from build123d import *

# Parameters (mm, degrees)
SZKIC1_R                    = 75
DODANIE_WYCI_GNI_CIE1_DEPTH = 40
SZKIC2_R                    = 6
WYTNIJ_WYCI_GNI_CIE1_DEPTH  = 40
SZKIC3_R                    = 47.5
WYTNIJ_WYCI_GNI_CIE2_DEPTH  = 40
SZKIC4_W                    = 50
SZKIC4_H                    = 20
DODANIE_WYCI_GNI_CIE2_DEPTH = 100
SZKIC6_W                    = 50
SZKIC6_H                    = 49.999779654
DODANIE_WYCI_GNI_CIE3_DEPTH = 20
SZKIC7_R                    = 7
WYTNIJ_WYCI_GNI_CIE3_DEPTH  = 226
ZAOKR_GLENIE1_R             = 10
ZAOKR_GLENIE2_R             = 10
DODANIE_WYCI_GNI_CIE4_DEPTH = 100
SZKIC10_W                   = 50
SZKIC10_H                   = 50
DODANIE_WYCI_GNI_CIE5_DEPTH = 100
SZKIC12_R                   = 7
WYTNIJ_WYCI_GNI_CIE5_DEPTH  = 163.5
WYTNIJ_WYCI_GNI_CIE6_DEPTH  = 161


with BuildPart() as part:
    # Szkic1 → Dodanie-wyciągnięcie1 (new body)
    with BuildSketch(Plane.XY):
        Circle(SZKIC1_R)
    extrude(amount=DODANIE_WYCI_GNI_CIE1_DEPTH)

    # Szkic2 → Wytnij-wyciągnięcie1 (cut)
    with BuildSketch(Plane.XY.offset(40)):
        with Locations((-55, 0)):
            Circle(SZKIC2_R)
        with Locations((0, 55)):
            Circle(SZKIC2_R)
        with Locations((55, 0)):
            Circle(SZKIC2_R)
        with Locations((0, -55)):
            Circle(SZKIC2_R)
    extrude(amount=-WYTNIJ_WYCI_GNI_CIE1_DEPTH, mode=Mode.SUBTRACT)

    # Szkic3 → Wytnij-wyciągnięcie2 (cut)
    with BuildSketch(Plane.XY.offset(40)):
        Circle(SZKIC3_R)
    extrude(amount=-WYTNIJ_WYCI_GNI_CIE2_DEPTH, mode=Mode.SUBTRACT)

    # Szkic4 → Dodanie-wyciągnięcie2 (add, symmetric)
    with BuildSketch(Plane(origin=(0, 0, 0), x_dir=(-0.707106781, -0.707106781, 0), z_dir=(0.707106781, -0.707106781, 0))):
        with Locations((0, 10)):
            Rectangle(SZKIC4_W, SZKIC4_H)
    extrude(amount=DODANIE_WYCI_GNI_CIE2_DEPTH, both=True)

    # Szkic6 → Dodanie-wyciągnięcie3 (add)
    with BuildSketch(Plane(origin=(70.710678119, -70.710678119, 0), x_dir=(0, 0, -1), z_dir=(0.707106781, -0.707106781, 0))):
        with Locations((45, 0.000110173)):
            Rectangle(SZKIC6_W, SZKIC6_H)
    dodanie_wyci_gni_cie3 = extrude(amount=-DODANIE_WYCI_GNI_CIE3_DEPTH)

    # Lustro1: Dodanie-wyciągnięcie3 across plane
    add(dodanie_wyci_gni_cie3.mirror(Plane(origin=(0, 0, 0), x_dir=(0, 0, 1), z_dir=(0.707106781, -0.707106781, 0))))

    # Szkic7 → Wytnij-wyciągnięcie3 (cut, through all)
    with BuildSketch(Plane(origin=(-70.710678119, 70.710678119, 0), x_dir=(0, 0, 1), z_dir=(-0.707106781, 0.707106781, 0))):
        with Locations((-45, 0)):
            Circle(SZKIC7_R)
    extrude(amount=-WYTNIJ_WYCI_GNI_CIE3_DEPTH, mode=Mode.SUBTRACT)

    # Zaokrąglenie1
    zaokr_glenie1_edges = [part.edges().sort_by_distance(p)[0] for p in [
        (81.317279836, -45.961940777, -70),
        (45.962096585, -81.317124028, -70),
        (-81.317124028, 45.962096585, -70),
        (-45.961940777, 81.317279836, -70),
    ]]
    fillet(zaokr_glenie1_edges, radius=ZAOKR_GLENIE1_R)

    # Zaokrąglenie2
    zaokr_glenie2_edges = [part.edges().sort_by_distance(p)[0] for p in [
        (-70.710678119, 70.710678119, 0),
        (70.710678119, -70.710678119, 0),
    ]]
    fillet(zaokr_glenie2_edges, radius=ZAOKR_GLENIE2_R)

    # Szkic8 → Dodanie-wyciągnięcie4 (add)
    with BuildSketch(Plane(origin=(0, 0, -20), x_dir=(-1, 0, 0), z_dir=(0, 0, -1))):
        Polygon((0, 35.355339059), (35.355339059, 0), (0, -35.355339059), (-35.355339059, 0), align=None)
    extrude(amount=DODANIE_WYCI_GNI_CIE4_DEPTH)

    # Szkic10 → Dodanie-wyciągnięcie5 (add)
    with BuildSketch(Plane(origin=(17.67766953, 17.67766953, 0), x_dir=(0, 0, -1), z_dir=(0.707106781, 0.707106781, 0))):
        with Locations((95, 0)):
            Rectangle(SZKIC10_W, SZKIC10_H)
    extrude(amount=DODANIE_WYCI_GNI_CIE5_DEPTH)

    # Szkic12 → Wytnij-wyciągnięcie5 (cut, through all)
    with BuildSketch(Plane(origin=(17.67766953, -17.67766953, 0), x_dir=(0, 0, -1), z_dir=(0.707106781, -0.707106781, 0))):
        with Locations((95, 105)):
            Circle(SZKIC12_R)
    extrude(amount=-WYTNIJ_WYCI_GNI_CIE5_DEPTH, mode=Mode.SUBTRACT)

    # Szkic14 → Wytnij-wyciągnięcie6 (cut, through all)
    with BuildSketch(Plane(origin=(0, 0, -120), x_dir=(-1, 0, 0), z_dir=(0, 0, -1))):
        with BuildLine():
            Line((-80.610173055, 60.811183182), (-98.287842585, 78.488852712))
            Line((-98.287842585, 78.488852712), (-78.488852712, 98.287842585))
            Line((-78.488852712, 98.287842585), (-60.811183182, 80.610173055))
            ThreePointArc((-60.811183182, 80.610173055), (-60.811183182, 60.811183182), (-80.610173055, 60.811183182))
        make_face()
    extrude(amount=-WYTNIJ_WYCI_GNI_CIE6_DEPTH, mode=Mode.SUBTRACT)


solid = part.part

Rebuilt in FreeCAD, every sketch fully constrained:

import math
import FreeCAD as App
import Part
import Sketcher

V = App.Vector
Q = App.Units.Quantity


def edges_at(feature, points):
    """Names of the edges that pass closest to the given points."""
    edges = feature.Shape.Edges
    near = lambda p: min(range(len(edges)), key=lambda i: edges[i].distToShape(Part.Vertex(*p))[0])
    return sorted({f"Edge{near(p) + 1}" for p in points})


def add_polygon(sketch, points):
    """Adds a closed chain of lines whose ends are joined by coincident constraints."""
    first, n = sketch.GeometryCount, len(points)
    for a, b in zip(points, points[1:] + points[:1]):
        sketch.addGeometry(Part.LineSegment(App.Vector(*a, 0), App.Vector(*b, 0)), False)
    for i in range(n):
        sketch.addConstraint(Sketcher.Constraint("Coincident", first + i, 2, first + (i + 1) % n, 1))

doc = App.newDocument("Part")
params = doc.addObject("Spreadsheet::Sheet", "Params")
for row, (alias, value) in enumerate([
    ("sketch1_diameter", "150 mm"),
    ("pad1_length", "40 mm"),
    ("sketch2_diameter", "12 mm"),
    ("pocket1_length", "40 mm"),
    ("sketch3_diameter", "95 mm"),
    ("pocket2_length", "40 mm"),
    ("sketch4_width", "50 mm"),
    ("sketch4_height", "20 mm"),
    ("pad2_length", "200 mm"),
    ("sketch5_width", "50 mm"),
    ("pad3_length", "20 mm"),
    ("sketch6_diameter", "14 mm"),
    ("fillet_radius", "10 mm"),
    ("fillet2_radius", "10 mm"),
    ("sketch7_length", "50 mm"),
    ("pad4_length", "100 mm"),
    ("sketch8_width", "50 mm"),
    ("pad5_length", "100 mm"),
    ("sketch9_diameter", "14 mm"),
    ("sketch10_radius", "14 mm"),
    ("sketch10_length", "25 mm"),
], start=1):
    params.set(f"A{row}", alias)
    params.set(f"B{row}", "=" + value)
    params.setAlias(f"B{row}", alias)

body = doc.addObject("PartDesign::Body", "Body")

sketch1 = body.newObject("Sketcher::SketchObject", "Sketch")
sketch1.AttachmentSupport = (doc.getObject("XY_Plane"), [""])
sketch1.MapMode = "FlatFace"
sketch1.addGeometry(Part.Circle(V(0, 0, 0), V(0, 0, 1), 75), False)
sketch1.addConstraint(Sketcher.Constraint("Coincident", 0, 3, -1, 1))
sketch1.addConstraint(Sketcher.Constraint("Diameter", 0, 150.0))
sketch1.setExpression("Constraints[1]", "Params.sketch1_diameter")
pad1 = body.newObject("PartDesign::Pad", "Pad")
pad1.Profile = sketch1
pad1.setExpression("Length", "Params.pad1_length")

sketch2 = body.newObject("Sketcher::SketchObject", "Sketch001")
sketch2.AttachmentSupport = (doc.getObject("XY_Plane"), [""])
sketch2.MapMode = "FlatFace"
sketch2.AttachmentOffset = App.Placement(V(0, 0, 40), App.Rotation())
sketch2.addGeometry(Part.Circle(V(-55, 0, 0), V(0, 0, 1), 6), False)
sketch2.addGeometry(Part.Circle(V(0, 55, 0), V(0, 0, 1), 6), False)
sketch2.addGeometry(Part.Circle(V(55, 0, 0), V(0, 0, 1), 6), False)
sketch2.addGeometry(Part.Circle(V(0, -55, 0), V(0, 0, 1), 6), False)
sketch2.addConstraint(Sketcher.Constraint("Equal", 0, 1))
sketch2.addConstraint(Sketcher.Constraint("Equal", 1, 2))
sketch2.addConstraint(Sketcher.Constraint("Equal", 2, 3))
sketch2.addConstraint(Sketcher.Constraint("Symmetric", 0, 3, 2, 3, -1, 1))
sketch2.addConstraint(Sketcher.Constraint("Symmetric", 1, 3, 3, 3, -1, 1))
sketch2.addConstraint(Sketcher.Constraint("PointOnObject", 0, 3, -1))
sketch2.addConstraint(Sketcher.Constraint("PointOnObject", 1, 3, -2))
sketch2.addConstraint(Sketcher.Constraint("Diameter", 0, 12.0))
sketch2.addConstraint(Sketcher.Constraint("DistanceX", 0, 3, -1, 1, 55.0))
sketch2.addConstraint(Sketcher.Constraint("DistanceY", -1, 1, 1, 3, 55.0))
sketch2.setExpression("Constraints[7]", "Params.sketch2_diameter")
pocket1 = body.newObject("PartDesign::Pocket", "Pocket")
pocket1.Profile = sketch2
pocket1.setExpression("Length", "Params.pocket1_length")

sketch3 = body.newObject("Sketcher::SketchObject", "Sketch002")
sketch3.AttachmentSupport = (doc.getObject("XY_Plane"), [""])
sketch3.MapMode = "FlatFace"
sketch3.AttachmentOffset = App.Placement(V(0, 0, 40), App.Rotation())
sketch3.addGeometry(Part.Circle(V(0, 0, 0), V(0, 0, 1), 47.5), False)
sketch3.addConstraint(Sketcher.Constraint("Coincident", 0, 3, -1, 1))
sketch3.addConstraint(Sketcher.Constraint("Diameter", 0, 95.0))
sketch3.setExpression("Constraints[1]", "Params.sketch3_diameter")
pocket2 = body.newObject("PartDesign::Pocket", "Pocket001")
pocket2.Profile = sketch3
pocket2.setExpression("Length", "Params.pocket2_length")

sketch4 = body.newObject("Sketcher::SketchObject", "Sketch003")
sketch4.Placement = App.Placement(V(0, 0, 0), App.Rotation(V(-0.707106781, -0.707106781, 0), V(0, 0, -0.999999999), V(0.707106781, -0.707106781, 0), "ZXY"))
add_polygon(sketch4, [(-25, 20), (-25, 0), (25, 0), (25, 20)])
sketch4.addConstraint(Sketcher.Constraint("Vertical", 0))
sketch4.addConstraint(Sketcher.Constraint("Horizontal", 1))
sketch4.addConstraint(Sketcher.Constraint("Vertical", 2))
sketch4.addConstraint(Sketcher.Constraint("Horizontal", 3))
sketch4.addConstraint(Sketcher.Constraint("Symmetric", 0, 2, 1, 2, -1, 1))
sketch4.addConstraint(Sketcher.Constraint("DistanceX", 1, 1, 1, 2, 50.0))
sketch4.addConstraint(Sketcher.Constraint("DistanceY", 0, 2, 0, 1, 20.0))
sketch4.setExpression("Constraints[9]", "Params.sketch4_width")
sketch4.setExpression("Constraints[10]", "Params.sketch4_height")
pad2 = body.newObject("PartDesign::Pad", "Pad001")
pad2.Profile = sketch4
pad2.setExpression("Length", "Params.pad2_length")
pad2.Midplane = True

sketch5 = body.newObject("Sketcher::SketchObject", "Sketch004")
sketch5.Placement = App.Placement(V(70.710678, -70.710678, 0), App.Rotation(V(0, 0, -1), V(0.707106781, 0.707106781, 0), V(0.707106781, -0.707106781, 0), "ZXY"))
add_polygon(sketch5, [(20, 25), (20, -24.99978), (70, -24.99978), (70, 25)])
sketch5.addConstraint(Sketcher.Constraint("Vertical", 0))
sketch5.addConstraint(Sketcher.Constraint("Horizontal", 1))
sketch5.addConstraint(Sketcher.Constraint("Vertical", 2))
sketch5.addConstraint(Sketcher.Constraint("Horizontal", 3))
sketch5.addConstraint(Sketcher.Constraint("DistanceX", 1, 1, 1, 2, 50.0))
sketch5.addConstraint(Sketcher.Constraint("DistanceX", -1, 1, 0, 2, 20.0))
sketch5.addConstraint(Sketcher.Constraint("DistanceY", -1, 1, 2, 2, 25.0))
sketch5.addConstraint(Sketcher.Constraint("DistanceY", 0, 2, 0, 1, 49.99978))
sketch5.setExpression("Constraints[8]", "Params.sketch5_width")
pad3 = body.newObject("PartDesign::Pad", "Pad002")
pad3.Profile = sketch5
pad3.setExpression("Length", "Params.pad3_length")
pad3.Reversed = True
doc.recompute()

datumplane = body.newObject("PartDesign::Plane", "DatumPlane")
datumplane.Placement = App.Placement(V(0, 0, 0), App.Rotation(V(-0.707106781, -0.707106781, 0), V(0, 0, -1), V(0.707106781, -0.707106781, 0), "ZXY"))
mirrored = body.newObject("PartDesign::Mirrored", "Mirrored")
mirrored.Originals = [pad3]
mirrored.MirrorPlane = (datumplane, [""])
body.Tip = mirrored

sketch6 = body.newObject("Sketcher::SketchObject", "Sketch005")
sketch6.Placement = App.Placement(V(-70.710678, 70.710678, 0), App.Rotation(V(0, 0, 1), V(0.707106781, 0.707106781, 0), V(-0.707106781, 0.707106781, 0), "ZXY"))
sketch6.addGeometry(Part.Circle(V(-45, 0, 0), V(0, 0, 1), 7), False)
sketch6.addConstraint(Sketcher.Constraint("PointOnObject", 0, 3, -1))
sketch6.addConstraint(Sketcher.Constraint("Diameter", 0, 14.0))
sketch6.addConstraint(Sketcher.Constraint("DistanceX", 0, 3, -1, 1, 45.0))
sketch6.setExpression("Constraints[1]", "Params.sketch6_diameter")
pocket3 = body.newObject("PartDesign::Pocket", "Pocket002")
pocket3.Profile = sketch6
pocket3.Type = "ThroughAll"
doc.recompute()

fillet = body.newObject("PartDesign::Fillet", "Fillet")
fillet.Base = (pocket3, edges_at(pocket3, [
    (81.317, -45.962, -70),
    (45.962, -81.317, -70),
    (-81.317, 45.962, -70),
    (-45.962, 81.317, -70),
]))
fillet.setExpression("Radius", "Params.fillet_radius")
doc.recompute()

fillet2 = body.newObject("PartDesign::Fillet", "Fillet001")
fillet2.Base = (fillet, edges_at(fillet, [(-70.711, 70.711, 0), (70.711, -70.711, 0)]))
fillet2.setExpression("Radius", "Params.fillet2_radius")

sketch7 = body.newObject("Sketcher::SketchObject", "Sketch006")
sketch7.AttachmentSupport = (doc.getObject("XY_Plane"), [""])
sketch7.MapMode = "FlatFace"
sketch7.AttachmentOffset = App.Placement(V(0, 0, -20), App.Rotation())
add_polygon(sketch7, [(-35.355339, 0), (0, 35.355339), (35.355339, 0), (0, -35.355339)])
sketch7.addConstraint(Sketcher.Constraint("Symmetric", 0, 2, 2, 2, -1, 1))
sketch7.addConstraint(Sketcher.Constraint("Symmetric", 1, 2, 3, 2, -1, 1))
sketch7.addConstraint(Sketcher.Constraint("PointOnObject", 0, 2, -2))
sketch7.addConstraint(Sketcher.Constraint("PointOnObject", 1, 2, -1))
sketch7.addConstraint(Sketcher.Constraint("Perpendicular", 0, 1))
sketch7.addConstraint(Sketcher.Constraint("Distance", 0, 50.0))
sketch7.setExpression("Constraints[9]", "Params.sketch7_length")
pad4 = body.newObject("PartDesign::Pad", "Pad003")
pad4.Profile = sketch7
pad4.setExpression("Length", "Params.pad4_length")
pad4.Reversed = True

sketch8 = body.newObject("Sketcher::SketchObject", "Sketch007")
sketch8.Placement = App.Placement(V(17.67767, 17.67767, 0), App.Rotation(V(0, 0, -1), V(-0.707106781, 0.707106781, 0), V(0.707106781, 0.707106781, 0), "ZXY"))
add_polygon(sketch8, [(70, 25), (70, -25), (120, -25), (120, 25)])
sketch8.addConstraint(Sketcher.Constraint("Vertical", 0))
sketch8.addConstraint(Sketcher.Constraint("Horizontal", 1))
sketch8.addConstraint(Sketcher.Constraint("Vertical", 2))
sketch8.addConstraint(Sketcher.Constraint("Horizontal", 3))
sketch8.addConstraint(Sketcher.Constraint("Equal", 3, 0))
sketch8.addConstraint(Sketcher.Constraint("DistanceX", 1, 1, 1, 2, 50.0))
sketch8.addConstraint(Sketcher.Constraint("DistanceX", -1, 1, 0, 2, 70.0))
sketch8.addConstraint(Sketcher.Constraint("DistanceY", 0, 2, -1, 1, 25.0))
sketch8.setExpression("Constraints[9]", "Params.sketch8_width")
pad5 = body.newObject("PartDesign::Pad", "Pad004")
pad5.Profile = sketch8
pad5.setExpression("Length", "Params.pad5_length")

sketch9 = body.newObject("Sketcher::SketchObject", "Sketch008")
sketch9.Placement = App.Placement(V(17.67767, -17.67767, 0), App.Rotation(V(0, 0, -1), V(0.707106781, 0.707106781, 0), V(0.707106781, -0.707106781, 0), "ZXY"))
sketch9.addGeometry(Part.Circle(V(95, 105, 0), V(0, 0, 1), 7), False)
sketch9.addConstraint(Sketcher.Constraint("Diameter", 0, 14.0))
sketch9.addConstraint(Sketcher.Constraint("DistanceX", -1, 1, 0, 3, 95.0))
sketch9.addConstraint(Sketcher.Constraint("DistanceY", -1, 1, 0, 3, 105.0))
sketch9.setExpression("Constraints[0]", "Params.sketch9_diameter")
pocket4 = body.newObject("PartDesign::Pocket", "Pocket003")
pocket4.Profile = sketch9
pocket4.Type = "ThroughAll"

sketch10 = body.newObject("Sketcher::SketchObject", "Sketch009")
sketch10.AttachmentSupport = (doc.getObject("XY_Plane"), [""])
sketch10.MapMode = "FlatFace"
sketch10.AttachmentOffset = App.Placement(V(0, 0, -120), App.Rotation())
sketch10.addGeometry(Part.LineSegment(V(98.287843, 78.488853, 0), V(80.610173, 60.811183, 0)), False)
sketch10.addGeometry(Part.ArcOfCircle(Part.Circle(V(70.710678, 70.710678, 0), V(0, 0, 1), 14), math.radians(135), math.radians(315)), False)
sketch10.addGeometry(Part.LineSegment(V(60.811183, 80.610173, 0), V(78.488853, 98.287843, 0)), False)
sketch10.addGeometry(Part.LineSegment(V(78.488853, 98.287843, 0), V(98.287843, 78.488853, 0)), False)
sketch10.addConstraint(Sketcher.Constraint("Tangent", 0, 2, 1, 2))
sketch10.addConstraint(Sketcher.Constraint("Tangent", 1, 1, 2, 1))
sketch10.addConstraint(Sketcher.Constraint("Coincident", 2, 2, 3, 1))
sketch10.addConstraint(Sketcher.Constraint("Coincident", 3, 2, 0, 1))
sketch10.addConstraint(Sketcher.Constraint("Parallel", 0, 2))
sketch10.addConstraint(Sketcher.Constraint("Perpendicular", 2, 3))
sketch10.addConstraint(Sketcher.Constraint("Radius", 1, 14.0))
sketch10.addConstraint(Sketcher.Constraint("Angle", 0, Q("-135 deg")))
sketch10.addConstraint(Sketcher.Constraint("Distance", 0, 25.0))
sketch10.addConstraint(Sketcher.Constraint("DistanceX", -1, 1, 1, 3, 70.710678))
sketch10.addConstraint(Sketcher.Constraint("DistanceY", -1, 1, 1, 3, 70.710678))
sketch10.setExpression("Constraints[6]", "Params.sketch10_radius")
sketch10.setExpression("Constraints[8]", "Params.sketch10_length")
pocket5 = body.newObject("PartDesign::Pocket", "Pocket004")
pocket5.Profile = sketch10
pocket5.Type = "ThroughAll"
pocket5.Reversed = True

doc.recompute()
